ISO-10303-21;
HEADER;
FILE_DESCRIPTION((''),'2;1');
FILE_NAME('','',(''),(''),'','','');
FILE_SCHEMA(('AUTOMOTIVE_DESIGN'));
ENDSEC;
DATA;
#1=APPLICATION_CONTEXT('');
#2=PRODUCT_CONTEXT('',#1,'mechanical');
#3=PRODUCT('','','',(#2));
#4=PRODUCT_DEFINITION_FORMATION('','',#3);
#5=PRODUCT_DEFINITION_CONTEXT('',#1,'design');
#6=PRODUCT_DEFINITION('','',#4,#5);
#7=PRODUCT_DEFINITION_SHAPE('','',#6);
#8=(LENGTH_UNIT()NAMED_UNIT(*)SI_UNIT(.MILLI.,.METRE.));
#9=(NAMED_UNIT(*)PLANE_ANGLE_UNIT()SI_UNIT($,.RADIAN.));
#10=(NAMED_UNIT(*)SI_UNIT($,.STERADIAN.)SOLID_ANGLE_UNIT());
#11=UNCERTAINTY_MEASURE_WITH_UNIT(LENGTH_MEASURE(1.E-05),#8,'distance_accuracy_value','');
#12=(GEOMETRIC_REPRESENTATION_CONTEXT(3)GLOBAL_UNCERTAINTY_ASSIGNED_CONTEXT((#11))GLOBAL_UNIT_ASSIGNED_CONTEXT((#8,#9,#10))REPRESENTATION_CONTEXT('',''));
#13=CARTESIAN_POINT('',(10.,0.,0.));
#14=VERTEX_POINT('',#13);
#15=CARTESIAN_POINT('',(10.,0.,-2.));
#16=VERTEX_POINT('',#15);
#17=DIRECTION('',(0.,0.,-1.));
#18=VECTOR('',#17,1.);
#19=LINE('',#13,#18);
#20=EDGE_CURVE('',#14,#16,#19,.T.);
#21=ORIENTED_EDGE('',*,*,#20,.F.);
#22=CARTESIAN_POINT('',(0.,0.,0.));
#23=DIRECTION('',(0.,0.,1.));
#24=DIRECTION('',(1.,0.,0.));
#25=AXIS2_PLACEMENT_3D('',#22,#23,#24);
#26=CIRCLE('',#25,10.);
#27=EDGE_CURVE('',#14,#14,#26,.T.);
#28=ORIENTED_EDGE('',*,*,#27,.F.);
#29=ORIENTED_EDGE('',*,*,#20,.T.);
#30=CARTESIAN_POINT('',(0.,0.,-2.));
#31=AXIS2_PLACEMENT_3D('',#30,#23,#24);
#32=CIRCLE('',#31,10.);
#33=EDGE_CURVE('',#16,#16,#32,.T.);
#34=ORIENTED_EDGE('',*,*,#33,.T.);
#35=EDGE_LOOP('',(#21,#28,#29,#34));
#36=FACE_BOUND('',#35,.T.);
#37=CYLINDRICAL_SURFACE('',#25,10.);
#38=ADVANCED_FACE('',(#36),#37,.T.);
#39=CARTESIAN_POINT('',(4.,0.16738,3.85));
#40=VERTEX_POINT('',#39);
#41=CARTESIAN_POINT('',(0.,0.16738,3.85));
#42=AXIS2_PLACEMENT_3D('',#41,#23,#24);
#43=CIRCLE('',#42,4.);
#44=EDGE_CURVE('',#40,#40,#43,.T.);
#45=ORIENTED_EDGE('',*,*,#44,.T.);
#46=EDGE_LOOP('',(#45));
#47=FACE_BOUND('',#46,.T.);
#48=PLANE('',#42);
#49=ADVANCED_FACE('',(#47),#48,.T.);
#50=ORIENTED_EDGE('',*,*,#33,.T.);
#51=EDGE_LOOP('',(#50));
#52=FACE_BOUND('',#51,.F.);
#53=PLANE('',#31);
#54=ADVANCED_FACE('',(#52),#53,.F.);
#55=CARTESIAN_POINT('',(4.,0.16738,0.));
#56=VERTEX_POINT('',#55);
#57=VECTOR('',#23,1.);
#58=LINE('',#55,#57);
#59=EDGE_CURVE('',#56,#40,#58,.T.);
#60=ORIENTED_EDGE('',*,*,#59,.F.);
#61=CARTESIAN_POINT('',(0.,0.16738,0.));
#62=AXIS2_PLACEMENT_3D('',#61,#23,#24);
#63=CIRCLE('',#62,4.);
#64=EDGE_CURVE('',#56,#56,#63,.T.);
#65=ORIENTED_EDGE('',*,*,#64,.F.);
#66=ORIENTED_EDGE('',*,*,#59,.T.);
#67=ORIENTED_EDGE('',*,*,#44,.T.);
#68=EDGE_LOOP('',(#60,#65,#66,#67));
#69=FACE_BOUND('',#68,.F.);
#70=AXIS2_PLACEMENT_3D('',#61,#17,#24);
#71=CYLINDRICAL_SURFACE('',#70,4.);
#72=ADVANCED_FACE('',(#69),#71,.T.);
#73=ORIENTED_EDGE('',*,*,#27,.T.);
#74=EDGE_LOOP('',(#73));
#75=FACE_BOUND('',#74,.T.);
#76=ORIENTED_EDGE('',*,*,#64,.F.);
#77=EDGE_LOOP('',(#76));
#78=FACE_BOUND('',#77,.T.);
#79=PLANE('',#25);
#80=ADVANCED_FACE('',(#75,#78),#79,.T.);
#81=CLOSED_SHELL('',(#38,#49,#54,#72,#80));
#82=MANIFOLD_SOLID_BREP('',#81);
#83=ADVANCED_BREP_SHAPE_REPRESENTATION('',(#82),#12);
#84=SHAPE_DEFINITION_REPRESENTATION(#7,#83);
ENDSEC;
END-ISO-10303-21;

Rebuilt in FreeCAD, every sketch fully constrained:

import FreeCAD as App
import Part
import Sketcher

doc = App.newDocument("Part")
body = doc.addObject("PartDesign::Body", "Body")

# Sketch on XY plane
sketch1 = doc.addObject("Sketcher::SketchObject", "Sketch")
body.addObject(sketch1)
sketch1.AttachmentSupport = (doc.XY_Plane, [""])
sketch1.MapMode = "FlatFace"
sketch1.addGeometry(Part.Circle(App.Vector(0, 0, 0), App.Vector(0, 0, 1), 10), False)
sketch1.addConstraint([
    Sketcher.Constraint("Coincident", 0, 3, -1, 1),
    Sketcher.Constraint("Diameter", 0, 20.0),
])
pad1 = doc.addObject("PartDesign::Pad", "Pad")
body.addObject(pad1)
pad1.Profile = sketch1
pad1.Length = 2
pad1.Reversed = True

# Sketch on XY plane
sketch2 = doc.addObject("Sketcher::SketchObject", "Sketch001")
body.addObject(sketch2)
sketch2.AttachmentSupport = (doc.XY_Plane, [""])
sketch2.MapMode = "FlatFace"
sketch2.addGeometry(Part.Circle(App.Vector(0, 0.2, 0), App.Vector(0, 0, 1), 4), False)
sketch2.addConstraint([
    Sketcher.Constraint("PointOnObject", 0, 3, -2),
    Sketcher.Constraint("Diameter", 0, 8.0),
    Sketcher.Constraint("DistanceY", -1, 1, 0, 3, 0.16738),
])
pad2 = doc.addObject("PartDesign::Pad", "Pad001")
body.addObject(pad2)
pad2.Profile = sketch2
pad2.Length = 3.85

doc.recompute()
